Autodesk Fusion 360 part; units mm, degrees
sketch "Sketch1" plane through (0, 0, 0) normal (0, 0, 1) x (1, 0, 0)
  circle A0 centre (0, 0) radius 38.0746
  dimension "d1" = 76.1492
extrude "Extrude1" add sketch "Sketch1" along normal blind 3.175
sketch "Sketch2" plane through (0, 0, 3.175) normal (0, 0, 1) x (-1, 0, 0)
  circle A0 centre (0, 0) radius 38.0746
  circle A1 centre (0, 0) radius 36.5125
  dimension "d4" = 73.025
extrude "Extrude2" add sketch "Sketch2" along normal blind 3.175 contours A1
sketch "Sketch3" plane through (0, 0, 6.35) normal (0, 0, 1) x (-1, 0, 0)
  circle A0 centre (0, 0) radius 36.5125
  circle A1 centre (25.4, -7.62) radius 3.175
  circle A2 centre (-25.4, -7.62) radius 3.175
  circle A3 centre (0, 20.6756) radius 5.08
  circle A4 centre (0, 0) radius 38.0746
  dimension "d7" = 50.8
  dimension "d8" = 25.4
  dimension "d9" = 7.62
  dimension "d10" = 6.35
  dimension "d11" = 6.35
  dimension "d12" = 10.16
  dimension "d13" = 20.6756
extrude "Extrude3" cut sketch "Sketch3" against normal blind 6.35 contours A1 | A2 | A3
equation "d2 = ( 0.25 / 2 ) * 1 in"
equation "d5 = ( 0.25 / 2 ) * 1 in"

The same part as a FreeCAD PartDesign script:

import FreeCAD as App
import Part
import Sketcher
from FreeCAD import Vector
Q = App.Units.Quantity

doc = App.newDocument("Part")
params = doc.addObject("Spreadsheet::Sheet", "Params")
for row, (alias, value) in enumerate([
    ("sketch1_diameter", "2.998 in"),
    ("pad1_length", "0.125 in"),
    ("sketch2_diameter", "2.875 in"),
    ("pad2_length", "0.125 in"),
    ("sketch3_diameter", "0.4 in"),
    ("sketch3_diameter2", "0.25 in"),
    ("pocket1_length", "0.25 in"),
], start=1):
    params.set(f"A{row}", alias)
    params.set(f"B{row}", "=" + value)
    params.setAlias(f"B{row}", alias)

body = doc.addObject("PartDesign::Body", "Body")

sketch1 = doc.addObject("Sketcher::SketchObject", "Sketch")
body.addObject(sketch1)
sketch1.AttachmentSupport = (doc.XY_Plane, [""])
sketch1.MapMode = "FlatFace"
sketch1.addGeometry(Part.Circle(Vector(0, 0, 0), Vector(0, 0, 1), 38), False)
sketch1.addConstraint([
    Sketcher.Constraint("Coincident", 0, 3, -1, 1),
    Sketcher.Constraint("Diameter", 0, Q("2.998 in")),
])
sketch1.setExpression("Constraints[1]", "Params.sketch1_diameter")
pad1 = doc.addObject("PartDesign::Pad", "Pad")
body.addObject(pad1)
pad1.Profile = sketch1
pad1.setExpression("Length", "Params.pad1_length")

sketch2 = doc.addObject("Sketcher::SketchObject", "Sketch001")
body.addObject(sketch2)
sketch2.AttachmentSupport = (doc.XY_Plane, [""])
sketch2.MapMode = "FlatFace"
sketch2.AttachmentOffset = App.Placement(Vector(0, 0, 0.125 * 25.4), App.Rotation())
sketch2.addGeometry(Part.Circle(Vector(0, 0, 0), Vector(0, 0, 1), 37), False)
sketch2.addConstraint([
    Sketcher.Constraint("Coincident", 0, 3, -1, 1),
    Sketcher.Constraint("Diameter", 0, Q("2.875 in")),
])
sketch2.setExpression("Constraints[1]", "Params.sketch2_diameter")
pad2 = doc.addObject("PartDesign::Pad", "Pad001")
body.addObject(pad2)
pad2.Profile = sketch2
pad2.setExpression("Length", "Params.pad2_length")

sketch3 = doc.addObject("Sketcher::SketchObject", "Sketch002")
body.addObject(sketch3)
sketch3.AttachmentSupport = (doc.XY_Plane, [""])
sketch3.MapMode = "FlatFace"
sketch3.AttachmentOffset = App.Placement(Vector(0, 0, 0.25 * 25.4), App.Rotation())
sketch3.addGeometry([
    Part.Circle(Vector(-25.4, 7.6, 0), Vector(0, 0, 1), 3.2),
    Part.Circle(Vector(25.4, 7.6, 0), Vector(0, 0, 1), 3.2),
    Part.Circle(Vector(0, -20.7, 0), Vector(0, 0, 1), 5.1),
], False)
sketch3.addConstraint([
    Sketcher.Constraint("Equal", 0, 1),
    Sketcher.Constraint("Symmetric", 0, 3, 1, 3, -2),
    Sketcher.Constraint("PointOnObject", 2, 3, -2),
    Sketcher.Constraint("Diameter", 2, Q("0.4 in")),
    Sketcher.Constraint("Diameter", 0, Q("0.25 in")),
    Sketcher.Constraint("DistanceX", 0, 3, -1, 1, Q("1 in")),
    Sketcher.Constraint("DistanceY", -1, 1, 0, 3, Q("0.3 in")),
    Sketcher.Constraint("DistanceY", 2, 3, -1, 1, Q("0.814 in")),
])
sketch3.setExpression("Constraints[3]", "Params.sketch3_diameter")
sketch3.setExpression("Constraints[4]", "Params.sketch3_diameter2")
pocket1 = doc.addObject("PartDesign::Pocket", "Pocket")
body.addObject(pocket1)
pocket1.Profile = sketch3
pocket1.setExpression("Length", "Params.pocket1_length")

doc.recompute()
